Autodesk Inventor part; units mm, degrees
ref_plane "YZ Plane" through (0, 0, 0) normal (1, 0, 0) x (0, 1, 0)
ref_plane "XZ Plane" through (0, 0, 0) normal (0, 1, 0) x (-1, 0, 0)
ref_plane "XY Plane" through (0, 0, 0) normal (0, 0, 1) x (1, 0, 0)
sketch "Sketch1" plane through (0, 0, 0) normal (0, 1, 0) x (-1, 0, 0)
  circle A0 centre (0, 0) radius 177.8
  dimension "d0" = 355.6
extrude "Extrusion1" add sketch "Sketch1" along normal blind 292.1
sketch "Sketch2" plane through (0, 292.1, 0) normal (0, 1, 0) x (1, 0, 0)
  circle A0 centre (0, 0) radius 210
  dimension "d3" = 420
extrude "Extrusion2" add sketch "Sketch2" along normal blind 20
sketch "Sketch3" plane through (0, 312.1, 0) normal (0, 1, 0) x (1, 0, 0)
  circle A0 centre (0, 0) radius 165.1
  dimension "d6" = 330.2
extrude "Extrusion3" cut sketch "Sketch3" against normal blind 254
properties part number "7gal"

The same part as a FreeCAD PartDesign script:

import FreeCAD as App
import Part
import Sketcher
Q = App.Units.Quantity

doc = App.newDocument("Part")
params = doc.addObject("Spreadsheet::Sheet", "Params")
for row, (alias, value) in enumerate([
    ("sketch1_diameter", "14 in"),
    ("pad1_length", "11.5 in"),
    ("pad2_length", "0.7874016 in"),
    ("sketch3_diameter", "13 in"),
    ("pocket1_length", "10 in"),
], start=1):
    params.set(f"A{row}", alias)
    params.set(f"B{row}", "=" + value)
    params.setAlias(f"B{row}", alias)

body = doc.addObject("PartDesign::Body", "Body")

# Sketch on XZ plane
sketch1 = body.newObject("Sketcher::SketchObject", "Sketch")
sketch1.AttachmentSupport = (doc.getObject("XZ_Plane"), [""])
sketch1.MapMode = "FlatFace"
sketch1.addGeometry(Part.Circle(App.Vector(0, 0, 0), App.Vector(0, 0, 1), 177.8), False)
sketch1.addConstraint(Sketcher.Constraint("Coincident", 0, 3, -1, 1))
sketch1.addConstraint(Sketcher.Constraint("Diameter", 0, Q("14 in")))
sketch1.setExpression("Constraints[1]", "Params.sketch1_diameter")
pad1 = body.newObject("PartDesign::Pad", "Pad")
pad1.Profile = sketch1
pad1.setExpression("Length", "Params.pad1_length")
pad1.Reversed = True

# Sketch on XZ plane
sketch2 = body.newObject("Sketcher::SketchObject", "Sketch001")
sketch2.AttachmentSupport = (doc.getObject("XZ_Plane"), [""])
sketch2.MapMode = "FlatFace"
sketch2.AttachmentOffset = App.Placement(App.Vector(0, 0, -11.5 * 25.4), App.Rotation())
sketch2.addGeometry(Part.Circle(App.Vector(0, 0, 0), App.Vector(0, 0, 1), 210), False)
sketch2.addConstraint(Sketcher.Constraint("Coincident", 0, 3, -1, 1))
sketch2.addConstraint(Sketcher.Constraint("Diameter", 0, 420.0))
pad2 = body.newObject("PartDesign::Pad", "Pad001")
pad2.Profile = sketch2
pad2.setExpression("Length", "Params.pad2_length")
pad2.Reversed = True

# Sketch on XZ plane
sketch3 = body.newObject("Sketcher::SketchObject", "Sketch002")
sketch3.AttachmentSupport = (doc.getObject("XZ_Plane"), [""])
sketch3.MapMode = "FlatFace"
sketch3.AttachmentOffset = App.Placement(App.Vector(0, 0, -12.2874016 * 25.4), App.Rotation())
sketch3.addGeometry(Part.Circle(App.Vector(0, 0, 0), App.Vector(0, 0, 1), 165.1), False)
sketch3.addConstraint(Sketcher.Constraint("Coincident", 0, 3, -1, 1))
sketch3.addConstraint(Sketcher.Constraint("Diameter", 0, Q("13 in")))
sketch3.setExpression("Constraints[1]", "Params.sketch3_diameter")
pocket1 = body.newObject("PartDesign::Pocket", "Pocket")
pocket1.Profile = sketch3
pocket1.setExpression("Length", "Params.pocket1_length")
pocket1.Reversed = True

doc.recompute()
